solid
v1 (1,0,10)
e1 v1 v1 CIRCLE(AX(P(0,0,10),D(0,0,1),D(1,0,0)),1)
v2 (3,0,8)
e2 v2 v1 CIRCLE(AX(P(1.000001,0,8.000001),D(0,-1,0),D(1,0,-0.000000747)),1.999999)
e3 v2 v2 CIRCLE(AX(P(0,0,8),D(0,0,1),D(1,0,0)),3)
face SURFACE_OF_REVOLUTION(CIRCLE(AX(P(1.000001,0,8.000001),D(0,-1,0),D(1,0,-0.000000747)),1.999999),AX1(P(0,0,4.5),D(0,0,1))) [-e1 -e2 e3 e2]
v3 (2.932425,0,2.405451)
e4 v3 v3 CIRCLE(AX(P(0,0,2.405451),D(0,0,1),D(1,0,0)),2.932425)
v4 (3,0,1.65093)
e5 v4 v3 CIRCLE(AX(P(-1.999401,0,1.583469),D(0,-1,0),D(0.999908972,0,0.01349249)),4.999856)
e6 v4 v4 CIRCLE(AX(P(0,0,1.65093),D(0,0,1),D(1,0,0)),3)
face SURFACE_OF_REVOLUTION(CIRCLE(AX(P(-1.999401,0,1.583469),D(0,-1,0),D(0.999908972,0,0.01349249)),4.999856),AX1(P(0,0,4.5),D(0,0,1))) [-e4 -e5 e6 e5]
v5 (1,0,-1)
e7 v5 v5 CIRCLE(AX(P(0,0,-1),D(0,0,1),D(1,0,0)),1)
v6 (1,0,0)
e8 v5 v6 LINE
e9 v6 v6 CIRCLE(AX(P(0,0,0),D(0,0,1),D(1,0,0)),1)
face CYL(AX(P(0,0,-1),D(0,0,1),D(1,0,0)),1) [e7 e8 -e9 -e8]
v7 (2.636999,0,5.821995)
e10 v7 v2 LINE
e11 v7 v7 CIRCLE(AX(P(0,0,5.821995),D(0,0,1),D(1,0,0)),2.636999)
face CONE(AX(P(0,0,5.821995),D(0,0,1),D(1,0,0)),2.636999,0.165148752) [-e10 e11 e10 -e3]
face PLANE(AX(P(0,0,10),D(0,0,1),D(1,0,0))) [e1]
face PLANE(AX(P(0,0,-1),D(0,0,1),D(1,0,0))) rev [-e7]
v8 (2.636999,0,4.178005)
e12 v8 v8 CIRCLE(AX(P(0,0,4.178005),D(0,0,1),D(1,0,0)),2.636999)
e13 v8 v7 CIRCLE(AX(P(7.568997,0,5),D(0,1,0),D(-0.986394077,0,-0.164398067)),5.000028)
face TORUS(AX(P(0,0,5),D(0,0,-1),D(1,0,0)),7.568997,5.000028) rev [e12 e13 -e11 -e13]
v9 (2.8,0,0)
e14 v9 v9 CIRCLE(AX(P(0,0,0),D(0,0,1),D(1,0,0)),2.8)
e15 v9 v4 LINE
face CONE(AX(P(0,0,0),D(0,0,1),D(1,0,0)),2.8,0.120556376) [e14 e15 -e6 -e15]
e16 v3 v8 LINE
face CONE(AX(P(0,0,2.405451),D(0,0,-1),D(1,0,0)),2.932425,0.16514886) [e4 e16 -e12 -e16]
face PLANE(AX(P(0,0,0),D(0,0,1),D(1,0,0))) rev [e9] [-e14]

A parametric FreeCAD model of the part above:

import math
import FreeCAD as App
import Part
import Sketcher

V = App.Vector

doc = App.newDocument("Part")
params = doc.addObject("Spreadsheet::Sheet", "Params")
for row, (alias, value) in enumerate([
    ("sketch1_radius", "1.999999 mm"),
    ("sketch1_width", "1 mm"),
    ("sketch1_height", "11 mm"),
    ("sketch1_width2", "1.8 mm"),
    ("revolution_angle", "360 deg"),
], start=1):
    params.set(f"A{row}", alias)
    params.set(f"B{row}", "=" + value)
    params.setAlias(f"B{row}", alias)

body = doc.addObject("PartDesign::Body", "Body")

sketch1 = body.newObject("Sketcher::SketchObject", "Sketch")
sketch1.AttachmentSupport = (doc.getObject("XZ_Plane"), [""])
sketch1.MapMode = "FlatFace"
sketch1.addGeometry(Part.ArcOfCircle(Part.Circle(V(-2, 1.6, 0), V(0, 0, 1), 5), math.radians(0.77), math.radians(9.46)), False)
sketch1.addGeometry(Part.LineSegment(V(2.9, 2.4, 0), V(2.6, 4.2, 0)), False)
sketch1.addGeometry(Part.ArcOfCircle(Part.Circle(V(7.6, 5, 0), V(0, 0, 1), 5), math.radians(170.54), math.radians(189.46)), False)
sketch1.addGeometry(Part.LineSegment(V(2.6, 5.8, 0), V(3, 8, 0)), False)
sketch1.addGeometry(Part.ArcOfCircle(Part.Circle(V(1, 8, 0), V(0, 0, 1), 2), math.radians(0), math.radians(90)), False)
sketch1.addGeometry(Part.LineSegment(V(1, 10, 0), V(0, 10, 0)), False)
sketch1.addGeometry(Part.LineSegment(V(0, 10, 0), V(0, -1, 0)), False)
sketch1.addGeometry(Part.LineSegment(V(0, -1, 0), V(1, -1, 0)), False)
sketch1.addGeometry(Part.LineSegment(V(1, -1, 0), V(1, 0, 0)), False)
sketch1.addGeometry(Part.LineSegment(V(1, 0, 0), V(2.8, 0, 0)), False)
sketch1.addGeometry(Part.LineSegment(V(2.8, 0, 0), V(3, 1.7, 0)), False)
sketch1.addConstraint(Sketcher.Constraint("Tangent", 0, 2, 1, 1))
sketch1.addConstraint(Sketcher.Constraint("Tangent", 1, 2, 2, 2))
sketch1.addConstraint(Sketcher.Constraint("Tangent", 2, 1, 3, 1))
sketch1.addConstraint(Sketcher.Constraint("Coincident", 3, 2, 4, 1))
sketch1.addConstraint(Sketcher.Constraint("Tangent", 4, 2, 5, 1))
sketch1.addConstraint(Sketcher.Constraint("Coincident", 5, 2, 6, 1))
sketch1.addConstraint(Sketcher.Constraint("Coincident", 6, 2, 7, 1))
sketch1.addConstraint(Sketcher.Constraint("Coincident", 7, 2, 8, 1))
sketch1.addConstraint(Sketcher.Constraint("Coincident", 8, 2, 9, 1))
sketch1.addConstraint(Sketcher.Constraint("Coincident", 9, 2, 10, 1))
sketch1.addConstraint(Sketcher.Constraint("Coincident", 10, 2, 0, 1))
sketch1.addConstraint(Sketcher.Constraint("Horizontal", 5))
sketch1.addConstraint(Sketcher.Constraint("Vertical", 6))
sketch1.addConstraint(Sketcher.Constraint("Horizontal", 7))
sketch1.addConstraint(Sketcher.Constraint("Vertical", 8))
sketch1.addConstraint(Sketcher.Constraint("Horizontal", 9))
sketch1.addConstraint(Sketcher.Constraint("PointOnObject", 5, 2, -2))
sketch1.addConstraint(Sketcher.Constraint("PointOnObject", 8, 2, -1))
sketch1.addConstraint(Sketcher.Constraint("Horizontal", 4, 3, 3, 2))
sketch1.addConstraint(Sketcher.Constraint("Vertical", 1, 2, 2, 1))
sketch1.addConstraint(Sketcher.Constraint("Vertical", 4, 2, 7, 2))
sketch1.addConstraint(Sketcher.Constraint("Vertical", 3, 2, 10, 2))
sketch1.addConstraint(Sketcher.Constraint("Equal", 7, 8))
sketch1.addConstraint(Sketcher.Constraint("Radius", 4, 1.999999))
sketch1.addConstraint(Sketcher.Constraint("DistanceX", 5, 2, 5, 1, 1.0))
sketch1.addConstraint(Sketcher.Constraint("DistanceY", 6, 2, 6, 1, 11.0))
sketch1.addConstraint(Sketcher.Constraint("DistanceX", 9, 1, 9, 2, 1.8))
sketch1.addConstraint(Sketcher.Constraint("DistanceY", -1, 1, 2, 3, 5.0))
sketch1.addConstraint(Sketcher.Constraint("Radius", 2, 5.000028))
sketch1.addConstraint(Sketcher.Constraint("Distance", 10, 1.663))
sketch1.addConstraint(Sketcher.Constraint("DistanceX", -1, 1, 1, 2, 2.636999))
sketch1.addConstraint(Sketcher.Constraint("Radius", 0, 4.999856))
sketch1.setExpression("Constraints[23]", "Params.sketch1_radius")
sketch1.setExpression("Constraints[24]", "Params.sketch1_width")
sketch1.setExpression("Constraints[25]", "Params.sketch1_height")
sketch1.setExpression("Constraints[26]", "Params.sketch1_width2")
revolution = body.newObject("PartDesign::Revolution", "Revolution")
revolution.Profile = sketch1
revolution.ReferenceAxis = (sketch1, ["V_Axis"])
revolution.setExpression("Angle", "Params.revolution_angle")

doc.recompute()
